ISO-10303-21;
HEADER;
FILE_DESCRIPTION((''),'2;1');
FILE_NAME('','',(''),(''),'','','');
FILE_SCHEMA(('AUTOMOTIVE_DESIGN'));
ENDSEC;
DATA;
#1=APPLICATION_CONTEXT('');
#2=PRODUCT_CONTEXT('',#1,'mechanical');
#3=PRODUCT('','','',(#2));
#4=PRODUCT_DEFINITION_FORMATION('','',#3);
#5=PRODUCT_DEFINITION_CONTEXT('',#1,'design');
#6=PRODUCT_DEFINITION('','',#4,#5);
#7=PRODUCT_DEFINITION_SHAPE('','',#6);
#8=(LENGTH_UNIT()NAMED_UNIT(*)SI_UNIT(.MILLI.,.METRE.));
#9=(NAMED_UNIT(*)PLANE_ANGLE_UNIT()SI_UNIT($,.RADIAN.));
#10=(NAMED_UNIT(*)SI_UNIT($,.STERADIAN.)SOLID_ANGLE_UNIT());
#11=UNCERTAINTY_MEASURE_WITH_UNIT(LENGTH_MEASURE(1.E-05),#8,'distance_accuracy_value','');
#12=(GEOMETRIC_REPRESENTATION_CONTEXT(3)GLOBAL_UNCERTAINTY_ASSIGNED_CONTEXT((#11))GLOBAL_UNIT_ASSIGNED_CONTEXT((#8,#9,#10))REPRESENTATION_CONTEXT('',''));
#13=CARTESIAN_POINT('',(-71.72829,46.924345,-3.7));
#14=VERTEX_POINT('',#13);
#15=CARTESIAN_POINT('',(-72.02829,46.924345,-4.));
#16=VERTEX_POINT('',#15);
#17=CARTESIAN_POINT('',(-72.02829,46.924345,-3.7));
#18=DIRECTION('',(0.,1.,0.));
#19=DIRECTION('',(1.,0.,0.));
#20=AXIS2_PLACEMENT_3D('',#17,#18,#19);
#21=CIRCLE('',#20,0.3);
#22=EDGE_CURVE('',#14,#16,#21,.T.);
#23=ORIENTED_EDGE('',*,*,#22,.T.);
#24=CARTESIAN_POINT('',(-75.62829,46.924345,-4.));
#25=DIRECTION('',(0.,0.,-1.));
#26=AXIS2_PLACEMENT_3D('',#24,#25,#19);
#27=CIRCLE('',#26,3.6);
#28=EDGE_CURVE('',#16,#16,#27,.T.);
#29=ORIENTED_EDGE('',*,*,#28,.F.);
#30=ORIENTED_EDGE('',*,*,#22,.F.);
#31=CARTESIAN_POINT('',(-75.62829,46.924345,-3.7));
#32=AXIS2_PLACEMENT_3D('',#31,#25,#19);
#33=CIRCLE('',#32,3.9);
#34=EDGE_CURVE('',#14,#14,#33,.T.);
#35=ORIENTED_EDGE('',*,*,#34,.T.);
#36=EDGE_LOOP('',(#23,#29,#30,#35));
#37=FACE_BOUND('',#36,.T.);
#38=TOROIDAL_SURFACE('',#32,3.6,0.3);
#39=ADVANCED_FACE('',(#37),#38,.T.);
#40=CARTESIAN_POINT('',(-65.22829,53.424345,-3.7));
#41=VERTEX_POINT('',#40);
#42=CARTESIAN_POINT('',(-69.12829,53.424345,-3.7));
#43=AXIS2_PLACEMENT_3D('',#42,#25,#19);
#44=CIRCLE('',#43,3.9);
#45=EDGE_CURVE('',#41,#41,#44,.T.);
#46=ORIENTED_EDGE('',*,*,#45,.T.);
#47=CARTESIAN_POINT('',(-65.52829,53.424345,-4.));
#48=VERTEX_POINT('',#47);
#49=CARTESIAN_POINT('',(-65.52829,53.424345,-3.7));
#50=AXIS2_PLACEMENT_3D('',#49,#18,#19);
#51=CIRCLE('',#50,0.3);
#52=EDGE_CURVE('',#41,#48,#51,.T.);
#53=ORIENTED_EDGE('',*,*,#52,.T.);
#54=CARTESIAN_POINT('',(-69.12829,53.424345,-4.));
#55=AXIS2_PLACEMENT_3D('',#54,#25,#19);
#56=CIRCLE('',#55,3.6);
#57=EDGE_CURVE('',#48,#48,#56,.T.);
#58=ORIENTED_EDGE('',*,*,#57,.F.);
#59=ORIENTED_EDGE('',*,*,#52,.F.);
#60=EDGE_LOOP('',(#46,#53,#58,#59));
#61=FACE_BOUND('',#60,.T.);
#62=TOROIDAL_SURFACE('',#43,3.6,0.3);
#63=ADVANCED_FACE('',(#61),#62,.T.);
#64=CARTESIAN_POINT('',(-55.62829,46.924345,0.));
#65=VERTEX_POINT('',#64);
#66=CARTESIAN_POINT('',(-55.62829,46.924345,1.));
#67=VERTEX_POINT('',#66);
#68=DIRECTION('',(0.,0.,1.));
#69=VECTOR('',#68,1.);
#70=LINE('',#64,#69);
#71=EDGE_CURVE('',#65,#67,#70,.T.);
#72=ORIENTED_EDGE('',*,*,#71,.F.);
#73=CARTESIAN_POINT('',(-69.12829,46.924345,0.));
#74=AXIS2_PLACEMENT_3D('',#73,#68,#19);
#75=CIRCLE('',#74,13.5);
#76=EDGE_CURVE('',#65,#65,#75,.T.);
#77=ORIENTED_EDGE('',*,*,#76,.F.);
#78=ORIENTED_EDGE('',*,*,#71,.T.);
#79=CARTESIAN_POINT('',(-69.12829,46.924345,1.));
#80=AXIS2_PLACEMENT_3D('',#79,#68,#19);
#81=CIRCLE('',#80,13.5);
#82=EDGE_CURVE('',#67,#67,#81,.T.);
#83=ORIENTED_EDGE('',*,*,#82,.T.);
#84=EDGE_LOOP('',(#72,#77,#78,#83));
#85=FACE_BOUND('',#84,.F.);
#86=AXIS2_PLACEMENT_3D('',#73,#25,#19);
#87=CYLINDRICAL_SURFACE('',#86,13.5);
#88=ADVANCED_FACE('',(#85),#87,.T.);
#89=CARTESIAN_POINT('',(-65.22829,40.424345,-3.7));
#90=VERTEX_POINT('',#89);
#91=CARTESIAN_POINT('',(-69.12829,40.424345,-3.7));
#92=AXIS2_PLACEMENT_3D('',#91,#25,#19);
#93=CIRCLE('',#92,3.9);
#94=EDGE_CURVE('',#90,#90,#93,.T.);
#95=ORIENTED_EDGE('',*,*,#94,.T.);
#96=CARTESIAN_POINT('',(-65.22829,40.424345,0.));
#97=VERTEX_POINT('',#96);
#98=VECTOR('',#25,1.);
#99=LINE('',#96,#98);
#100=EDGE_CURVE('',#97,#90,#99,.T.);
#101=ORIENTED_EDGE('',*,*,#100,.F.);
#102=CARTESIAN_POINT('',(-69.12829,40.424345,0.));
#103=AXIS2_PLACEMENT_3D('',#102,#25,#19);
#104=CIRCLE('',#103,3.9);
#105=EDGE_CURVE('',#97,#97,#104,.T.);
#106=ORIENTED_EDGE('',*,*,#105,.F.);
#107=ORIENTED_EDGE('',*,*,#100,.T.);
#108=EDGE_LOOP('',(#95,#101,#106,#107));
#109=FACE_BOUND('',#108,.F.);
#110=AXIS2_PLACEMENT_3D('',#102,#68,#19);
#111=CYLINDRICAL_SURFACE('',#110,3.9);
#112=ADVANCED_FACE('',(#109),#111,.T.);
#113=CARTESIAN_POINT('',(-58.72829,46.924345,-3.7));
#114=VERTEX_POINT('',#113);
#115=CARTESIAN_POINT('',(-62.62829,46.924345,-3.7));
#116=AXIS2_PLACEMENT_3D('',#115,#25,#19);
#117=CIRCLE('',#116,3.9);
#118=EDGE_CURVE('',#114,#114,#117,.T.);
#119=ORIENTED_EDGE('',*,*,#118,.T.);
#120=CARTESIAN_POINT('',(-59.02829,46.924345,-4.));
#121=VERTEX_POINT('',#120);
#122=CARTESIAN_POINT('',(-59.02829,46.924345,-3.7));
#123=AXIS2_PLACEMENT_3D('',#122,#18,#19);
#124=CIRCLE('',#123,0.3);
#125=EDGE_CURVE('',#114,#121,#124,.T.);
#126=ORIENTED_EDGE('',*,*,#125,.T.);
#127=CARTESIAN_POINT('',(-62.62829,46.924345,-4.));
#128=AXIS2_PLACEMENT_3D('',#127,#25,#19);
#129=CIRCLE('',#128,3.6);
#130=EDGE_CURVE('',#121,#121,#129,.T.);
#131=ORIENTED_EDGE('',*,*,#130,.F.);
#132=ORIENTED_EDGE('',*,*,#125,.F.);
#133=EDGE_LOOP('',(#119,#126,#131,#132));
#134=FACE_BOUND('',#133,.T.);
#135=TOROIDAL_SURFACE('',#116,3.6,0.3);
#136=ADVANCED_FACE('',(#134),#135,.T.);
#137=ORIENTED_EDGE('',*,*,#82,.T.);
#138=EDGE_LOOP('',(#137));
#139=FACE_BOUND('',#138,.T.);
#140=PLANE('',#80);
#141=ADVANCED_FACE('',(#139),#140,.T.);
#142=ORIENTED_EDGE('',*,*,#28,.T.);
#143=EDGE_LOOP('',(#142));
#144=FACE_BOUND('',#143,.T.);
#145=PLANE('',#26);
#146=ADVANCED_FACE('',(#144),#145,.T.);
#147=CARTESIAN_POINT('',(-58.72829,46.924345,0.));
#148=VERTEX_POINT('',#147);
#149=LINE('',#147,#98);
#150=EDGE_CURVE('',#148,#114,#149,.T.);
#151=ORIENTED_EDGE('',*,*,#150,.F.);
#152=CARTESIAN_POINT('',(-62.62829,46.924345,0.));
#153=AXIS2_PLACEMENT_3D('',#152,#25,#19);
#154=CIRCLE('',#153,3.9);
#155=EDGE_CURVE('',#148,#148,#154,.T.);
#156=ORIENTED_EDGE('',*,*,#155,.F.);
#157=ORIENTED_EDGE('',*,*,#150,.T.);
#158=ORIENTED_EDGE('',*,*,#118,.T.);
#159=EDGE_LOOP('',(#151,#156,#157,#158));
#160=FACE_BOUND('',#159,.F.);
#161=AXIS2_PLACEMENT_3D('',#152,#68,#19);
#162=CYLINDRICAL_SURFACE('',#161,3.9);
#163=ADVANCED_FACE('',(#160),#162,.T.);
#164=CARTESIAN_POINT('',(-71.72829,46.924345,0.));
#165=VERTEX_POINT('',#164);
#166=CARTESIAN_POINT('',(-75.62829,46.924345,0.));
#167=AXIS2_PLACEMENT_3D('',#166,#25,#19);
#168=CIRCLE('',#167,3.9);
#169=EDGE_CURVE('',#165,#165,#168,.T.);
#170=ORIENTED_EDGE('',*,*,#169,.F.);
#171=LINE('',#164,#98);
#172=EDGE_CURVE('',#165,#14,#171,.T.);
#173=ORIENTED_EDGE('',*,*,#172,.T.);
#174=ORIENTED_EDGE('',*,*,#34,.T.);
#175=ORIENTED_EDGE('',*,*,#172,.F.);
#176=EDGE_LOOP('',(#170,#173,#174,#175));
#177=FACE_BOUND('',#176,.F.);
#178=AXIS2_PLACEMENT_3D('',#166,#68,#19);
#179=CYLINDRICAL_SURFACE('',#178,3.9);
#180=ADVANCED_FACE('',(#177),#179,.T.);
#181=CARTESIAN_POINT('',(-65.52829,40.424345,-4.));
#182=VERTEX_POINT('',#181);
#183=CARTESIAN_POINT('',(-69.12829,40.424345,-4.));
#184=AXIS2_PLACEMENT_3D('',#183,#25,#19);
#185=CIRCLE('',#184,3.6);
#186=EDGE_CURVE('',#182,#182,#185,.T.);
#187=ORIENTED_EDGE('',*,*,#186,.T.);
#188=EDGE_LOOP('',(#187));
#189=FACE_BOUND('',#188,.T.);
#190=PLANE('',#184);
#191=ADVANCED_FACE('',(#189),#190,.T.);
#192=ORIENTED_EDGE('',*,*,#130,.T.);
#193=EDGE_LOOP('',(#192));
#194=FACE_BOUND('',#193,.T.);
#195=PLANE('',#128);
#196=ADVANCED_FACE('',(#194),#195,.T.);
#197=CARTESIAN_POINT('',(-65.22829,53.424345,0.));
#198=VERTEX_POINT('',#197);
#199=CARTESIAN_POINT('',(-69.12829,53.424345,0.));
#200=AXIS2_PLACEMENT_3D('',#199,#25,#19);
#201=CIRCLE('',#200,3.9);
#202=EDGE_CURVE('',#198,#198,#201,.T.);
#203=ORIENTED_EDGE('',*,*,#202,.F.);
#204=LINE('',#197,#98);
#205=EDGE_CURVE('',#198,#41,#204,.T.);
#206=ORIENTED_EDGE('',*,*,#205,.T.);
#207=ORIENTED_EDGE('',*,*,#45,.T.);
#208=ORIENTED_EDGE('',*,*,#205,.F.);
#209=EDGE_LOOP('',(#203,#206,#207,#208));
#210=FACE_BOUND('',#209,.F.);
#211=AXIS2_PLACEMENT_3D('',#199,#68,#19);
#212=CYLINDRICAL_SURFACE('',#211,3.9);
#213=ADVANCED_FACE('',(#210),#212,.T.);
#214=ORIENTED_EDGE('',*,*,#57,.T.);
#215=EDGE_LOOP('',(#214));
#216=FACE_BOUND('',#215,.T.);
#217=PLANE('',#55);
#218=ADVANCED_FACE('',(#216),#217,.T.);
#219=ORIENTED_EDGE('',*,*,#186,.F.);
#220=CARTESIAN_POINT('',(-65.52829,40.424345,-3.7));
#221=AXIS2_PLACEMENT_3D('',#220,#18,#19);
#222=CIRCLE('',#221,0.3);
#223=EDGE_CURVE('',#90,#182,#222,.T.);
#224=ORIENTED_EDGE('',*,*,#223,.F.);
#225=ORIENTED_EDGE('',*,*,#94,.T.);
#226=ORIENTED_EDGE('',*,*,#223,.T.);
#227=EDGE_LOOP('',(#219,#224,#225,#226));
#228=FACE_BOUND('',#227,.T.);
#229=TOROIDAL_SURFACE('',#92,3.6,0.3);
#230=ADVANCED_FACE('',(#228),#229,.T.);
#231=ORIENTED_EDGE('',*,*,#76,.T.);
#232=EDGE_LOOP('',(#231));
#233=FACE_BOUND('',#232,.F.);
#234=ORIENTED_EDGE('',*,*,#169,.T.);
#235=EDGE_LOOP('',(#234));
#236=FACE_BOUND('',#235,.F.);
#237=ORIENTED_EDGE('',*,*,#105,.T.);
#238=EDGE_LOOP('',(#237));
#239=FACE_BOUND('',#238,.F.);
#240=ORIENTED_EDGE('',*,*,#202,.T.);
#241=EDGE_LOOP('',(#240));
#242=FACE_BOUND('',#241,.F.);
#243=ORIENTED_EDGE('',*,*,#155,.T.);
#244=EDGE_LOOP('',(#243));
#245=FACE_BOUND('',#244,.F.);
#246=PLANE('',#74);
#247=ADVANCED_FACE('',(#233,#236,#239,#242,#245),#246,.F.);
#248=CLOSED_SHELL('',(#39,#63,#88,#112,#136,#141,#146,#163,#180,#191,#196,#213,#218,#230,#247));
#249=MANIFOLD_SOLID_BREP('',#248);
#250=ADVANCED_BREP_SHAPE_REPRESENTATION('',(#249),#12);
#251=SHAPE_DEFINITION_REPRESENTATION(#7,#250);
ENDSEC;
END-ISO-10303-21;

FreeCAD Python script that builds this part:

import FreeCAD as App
import Part
import Sketcher

V = App.Vector
Q = App.Units.Quantity


def edges_at(feature, points):
    """Names of the edges that pass closest to the given points."""
    edges = feature.Shape.Edges
    near = lambda p: min(range(len(edges)), key=lambda i: edges[i].distToShape(Part.Vertex(*p))[0])
    return sorted({f"Edge{near(p) + 1}" for p in points})

doc = App.newDocument("Part")
body = doc.addObject("PartDesign::Body", "Body")

# Sketch on XY plane
sketch1 = body.newObject("Sketcher::SketchObject", "Sketch")
sketch1.AttachmentSupport = (doc.getObject("XY_Plane"), [""])
sketch1.MapMode = "FlatFace"
sketch1.addGeometry(Part.Circle(V(-69.12829, 46.924345, 0), V(0, 0, 1), 13.5), False)
sketch1.addConstraint([
    Sketcher.Constraint("Diameter", 0, Q("27 mm")),
    Sketcher.Constraint("DistanceX", 0, 3, -1, 1, Q("69.12829 mm")),
    Sketcher.Constraint("DistanceY", -1, 1, 0, 3, Q("46.924345 mm")),
])
pad1 = body.newObject("PartDesign::Pad", "Pad")
pad1.Profile = sketch1
pad1.Length = 1

# Sketch on XY plane
sketch2 = body.newObject("Sketcher::SketchObject", "Sketch001")
sketch2.AttachmentSupport = (doc.getObject("XY_Plane"), [""])
sketch2.MapMode = "FlatFace"
sketch2.addGeometry([
    Part.Circle(V(-62.62829, 46.924345, 0), V(0, 0, 1), 3.9),
    Part.Circle(V(-69.12829, 40.424345, 0), V(0, 0, 1), 3.9),
    Part.Circle(V(-75.62829, 46.924345, 0), V(0, 0, 1), 3.9),
    Part.Circle(V(-69.12829, 53.424345, 0), V(0, 0, 1), 3.9),
], False)
sketch2.addConstraint([
    Sketcher.Constraint("Equal", 0, 1),
    Sketcher.Constraint("Equal", 1, 2),
    Sketcher.Constraint("Equal", 2, 3),
    Sketcher.Constraint("Horizontal", 0, 3, 2, 3),
    Sketcher.Constraint("Vertical", 1, 3, 3, 3),
    Sketcher.Constraint("Diameter", 0, Q("7.8 mm")),
    Sketcher.Constraint("DistanceX", 2, 3, 0, 3, Q("13 mm")),
    Sketcher.Constraint("DistanceY", 1, 3, 3, 3, Q("13 mm")),
    Sketcher.Constraint("DistanceX", 1, 3, 0, 3, Q("6.5 mm")),
    Sketcher.Constraint("DistanceY", 1, 3, 0, 3, Q("6.5 mm")),
    Sketcher.Constraint("DistanceX", 0, 3, -1, 1, Q("62.62829 mm")),
    Sketcher.Constraint("DistanceY", -1, 1, 0, 3, Q("46.924345 mm")),
])
pad2 = body.newObject("PartDesign::Pad", "Pad001")
pad2.Profile = sketch2
pad2.Length = 4
pad2.Reversed = True
doc.recompute()

fillet = body.newObject("PartDesign::Fillet", "Fillet")
fillet.Base = (pad2, edges_at(pad2, [
    (-73.028, 53.424, -4),
    (-66.528, 46.924, -4),
    (-73.028, 40.424, -4),
    (-79.528, 46.924, -4),
]))
fillet.Radius = 0.3

doc.recompute()
